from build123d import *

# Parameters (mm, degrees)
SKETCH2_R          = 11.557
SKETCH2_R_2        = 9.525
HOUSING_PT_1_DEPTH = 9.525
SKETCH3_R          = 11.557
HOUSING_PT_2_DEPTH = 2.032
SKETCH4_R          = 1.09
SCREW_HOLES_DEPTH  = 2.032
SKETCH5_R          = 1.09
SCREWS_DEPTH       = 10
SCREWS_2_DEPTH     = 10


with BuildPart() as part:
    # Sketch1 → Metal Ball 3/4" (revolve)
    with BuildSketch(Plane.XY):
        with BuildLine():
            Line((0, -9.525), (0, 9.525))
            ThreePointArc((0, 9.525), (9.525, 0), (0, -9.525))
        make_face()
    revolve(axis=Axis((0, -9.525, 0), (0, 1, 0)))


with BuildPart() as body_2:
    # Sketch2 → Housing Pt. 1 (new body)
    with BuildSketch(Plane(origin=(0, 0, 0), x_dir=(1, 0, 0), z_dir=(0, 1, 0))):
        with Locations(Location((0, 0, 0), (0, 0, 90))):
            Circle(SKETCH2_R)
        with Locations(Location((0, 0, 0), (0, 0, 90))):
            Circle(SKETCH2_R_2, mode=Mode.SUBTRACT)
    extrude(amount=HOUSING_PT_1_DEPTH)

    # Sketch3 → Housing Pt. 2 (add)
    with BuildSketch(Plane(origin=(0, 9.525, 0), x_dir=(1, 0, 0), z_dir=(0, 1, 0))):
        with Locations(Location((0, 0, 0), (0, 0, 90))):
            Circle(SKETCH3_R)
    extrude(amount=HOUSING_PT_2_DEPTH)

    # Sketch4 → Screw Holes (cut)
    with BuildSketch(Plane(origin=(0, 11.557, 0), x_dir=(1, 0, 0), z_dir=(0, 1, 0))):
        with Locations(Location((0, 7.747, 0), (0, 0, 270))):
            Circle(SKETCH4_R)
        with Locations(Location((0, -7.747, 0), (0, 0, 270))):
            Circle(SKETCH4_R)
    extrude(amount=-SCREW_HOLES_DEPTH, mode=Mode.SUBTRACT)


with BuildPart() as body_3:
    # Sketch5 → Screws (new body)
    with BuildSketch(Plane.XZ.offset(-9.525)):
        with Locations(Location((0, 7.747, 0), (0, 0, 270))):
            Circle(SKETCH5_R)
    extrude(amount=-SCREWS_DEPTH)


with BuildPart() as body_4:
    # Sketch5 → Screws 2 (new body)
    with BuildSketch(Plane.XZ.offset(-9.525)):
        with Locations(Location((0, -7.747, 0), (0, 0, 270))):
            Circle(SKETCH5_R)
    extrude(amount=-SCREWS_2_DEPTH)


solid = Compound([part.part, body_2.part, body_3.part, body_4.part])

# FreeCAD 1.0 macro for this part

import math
import FreeCAD as App
import Part
import Sketcher
Q = App.Units.Quantity

doc = App.newDocument("Part")
params = doc.addObject("Spreadsheet::Sheet", "Params")
for row, (alias, value) in enumerate([
    ("sketch1_radius", "0.375 in"),
    ("revolution_angle", "360 deg"),
    ("sketch2_diameter", "0.91 in"),
    ("sketch2_diameter2", "0.75 in"),
    ("pad1_length", "0.375 in"),
    ("sketch3_diameter", "0.91 in"),
    ("pad2_length", "0.08 in"),
    ("pocket1_length", "0.08 in"),
    ("pad3_length", "10 mm"),
    ("pad4_length", "10 mm"),
], start=1):
    params.set(f"A{row}", alias)
    params.set(f"B{row}", "=" + value)
    params.setAlias(f"B{row}", alias)

body = doc.addObject("PartDesign::Body", "Body")

# Sketch on XY plane
sketch1 = body.newObject("Sketcher::SketchObject", "Sketch")
sketch1.AttachmentSupport = (doc.getObject("XY_Plane"), [""])
sketch1.MapMode = "FlatFace"
sketch1.addGeometry([
    Part.LineSegment(App.Vector(0, 10, 0), App.Vector(0, -10, 0)),
    Part.ArcOfCircle(Part.Circle(App.Vector(0, 0, 0), App.Vector(0, 0, 1), 10), math.radians(-90), math.radians(90)),
], False)
sketch1.addConstraint([
    Sketcher.Constraint("Coincident", 0, 1, 1, 2),
    Sketcher.Constraint("Coincident", 1, 1, 0, 2),
    Sketcher.Constraint("Vertical", 0),
    Sketcher.Constraint("Coincident", 1, 3, -1, 1),
    Sketcher.Constraint("PointOnObject", 0, 1, -2),
    Sketcher.Constraint("Radius", 1, Q("0.375 in")),
])
sketch1.setExpression("Constraints[5]", "Params.sketch1_radius")
revolution = body.newObject("PartDesign::Revolution", "Revolution")
revolution.Profile = sketch1
revolution.ReferenceAxis = (sketch1, ["V_Axis"])
revolution.setExpression("Angle", "Params.revolution_angle")
body2 = doc.addObject("PartDesign::Body", "Body001")

# Sketch on XZ plane
sketch2 = body2.newObject("Sketcher::SketchObject", "Sketch001")
sketch2.AttachmentSupport = (doc.getObject("XZ_Plane001"), [""])
sketch2.MapMode = "FlatFace"
sketch2.addGeometry([
    Part.Circle(App.Vector(0, 0, 0), App.Vector(0, 0, 1), 12),
    Part.Circle(App.Vector(0, 0, 0), App.Vector(0, 0, 1), 10),
], False)
sketch2.addConstraint([
    Sketcher.Constraint("Coincident", 0, 3, -1, 1),
    Sketcher.Constraint("Coincident", 1, 3, -1, 1),
    Sketcher.Constraint("Diameter", 0, Q("0.91 in")),
    Sketcher.Constraint("Diameter", 1, Q("0.75 in")),
])
sketch2.setExpression("Constraints[2]", "Params.sketch2_diameter")
sketch2.setExpression("Constraints[3]", "Params.sketch2_diameter2")
pad1 = body2.newObject("PartDesign::Pad", "Pad")
pad1.Profile = sketch2
pad1.setExpression("Length", "Params.pad1_length")
pad1.Reversed = True

# Sketch on XZ plane
sketch3 = body2.newObject("Sketcher::SketchObject", "Sketch002")
sketch3.AttachmentSupport = (doc.getObject("XZ_Plane001"), [""])
sketch3.MapMode = "FlatFace"
sketch3.AttachmentOffset = App.Placement(App.Vector(0, 0, -0.375 * 25.4), App.Rotation())
sketch3.addGeometry(Part.Circle(App.Vector(0, 0, 0), App.Vector(0, 0, 1), 12), False)
sketch3.addConstraint([
    Sketcher.Constraint("Coincident", 0, 3, -1, 1),
    Sketcher.Constraint("Diameter", 0, Q("0.91 in")),
])
sketch3.setExpression("Constraints[1]", "Params.sketch3_diameter")
pad2 = body2.newObject("PartDesign::Pad", "Pad001")
pad2.Profile = sketch3
pad2.setExpression("Length", "Params.pad2_length")
pad2.Reversed = True

# Sketch on XZ plane
sketch4 = body2.newObject("Sketcher::SketchObject", "Sketch003")
sketch4.AttachmentSupport = (doc.getObject("XZ_Plane001"), [""])
sketch4.MapMode = "FlatFace"
sketch4.AttachmentOffset = App.Placement(App.Vector(0, 0, -0.455 * 25.4), App.Rotation())
sketch4.addGeometry([
    Part.Circle(App.Vector(0, -7.7, 0), App.Vector(0, 0, 1), 1.1),
    Part.Circle(App.Vector(0, 7.7, 0), App.Vector(0, 0, 1), 1.1),
], False)
sketch4.addConstraint([
    Sketcher.Constraint("Equal", 0, 1),
    Sketcher.Constraint("Symmetric", 0, 3, 1, 3, -1, 1),
    Sketcher.Constraint("PointOnObject", 0, 3, -2),
    Sketcher.Constraint("Diameter", 0, Q("2.18 mm")),
    Sketcher.Constraint("DistanceY", 0, 3, 1, 3, Q("0.61 in")),
])
pocket1 = body2.newObject("PartDesign::Pocket", "Pocket")
pocket1.Profile = sketch4
pocket1.setExpression("Length", "Params.pocket1_length")
pocket1.Reversed = True
body3 = doc.addObject("PartDesign::Body", "Body002")

# Sketch on XZ plane
sketch5 = body3.newObject("Sketcher::SketchObject", "Sketch004")
sketch5.AttachmentSupport = (doc.getObject("XZ_Plane002"), [""])
sketch5.MapMode = "FlatFace"
sketch5.AttachmentOffset = App.Placement(App.Vector(0, 0, -0.375 * 25.4), App.Rotation())
sketch5.addGeometry(Part.Circle(App.Vector(0, 7.7, 0), App.Vector(0, 0, 1), 1.1), False)
sketch5.addConstraint([
    Sketcher.Constraint("PointOnObject", 0, 3, -2),
    Sketcher.Constraint("Diameter", 0, Q("2.18 mm")),
    Sketcher.Constraint("DistanceY", -1, 1, 0, 3, Q("0.305 in")),
])
pad3 = body3.newObject("PartDesign::Pad", "Pad002")
pad3.Profile = sketch5
pad3.setExpression("Length", "Params.pad3_length")
pad3.Reversed = True
body4 = doc.addObject("PartDesign::Body", "Body003")

# Sketch on XZ plane
sketch6 = body4.newObject("Sketcher::SketchObject", "Sketch005")
sketch6.AttachmentSupport = (doc.getObject("XZ_Plane003"), [""])
sketch6.MapMode = "FlatFace"
sketch6.AttachmentOffset = App.Placement(App.Vector(0, 0, -0.375 * 25.4), App.Rotation())
sketch6.addGeometry(Part.Circle(App.Vector(0, -7.7, 0), App.Vector(0, 0, 1), 1.1), False)
sketch6.addConstraint([
    Sketcher.Constraint("PointOnObject", 0, 3, -2),
    Sketcher.Constraint("Diameter", 0, Q("2.18 mm")),
    Sketcher.Constraint("DistanceY", 0, 3, -1, 1, Q("0.305 in")),
])
pad4 = body4.newObject("PartDesign::Pad", "Pad003")
pad4.Profile = sketch6
pad4.setExpression("Length", "Params.pad4_length")
pad4.Reversed = True

doc.recompute()
